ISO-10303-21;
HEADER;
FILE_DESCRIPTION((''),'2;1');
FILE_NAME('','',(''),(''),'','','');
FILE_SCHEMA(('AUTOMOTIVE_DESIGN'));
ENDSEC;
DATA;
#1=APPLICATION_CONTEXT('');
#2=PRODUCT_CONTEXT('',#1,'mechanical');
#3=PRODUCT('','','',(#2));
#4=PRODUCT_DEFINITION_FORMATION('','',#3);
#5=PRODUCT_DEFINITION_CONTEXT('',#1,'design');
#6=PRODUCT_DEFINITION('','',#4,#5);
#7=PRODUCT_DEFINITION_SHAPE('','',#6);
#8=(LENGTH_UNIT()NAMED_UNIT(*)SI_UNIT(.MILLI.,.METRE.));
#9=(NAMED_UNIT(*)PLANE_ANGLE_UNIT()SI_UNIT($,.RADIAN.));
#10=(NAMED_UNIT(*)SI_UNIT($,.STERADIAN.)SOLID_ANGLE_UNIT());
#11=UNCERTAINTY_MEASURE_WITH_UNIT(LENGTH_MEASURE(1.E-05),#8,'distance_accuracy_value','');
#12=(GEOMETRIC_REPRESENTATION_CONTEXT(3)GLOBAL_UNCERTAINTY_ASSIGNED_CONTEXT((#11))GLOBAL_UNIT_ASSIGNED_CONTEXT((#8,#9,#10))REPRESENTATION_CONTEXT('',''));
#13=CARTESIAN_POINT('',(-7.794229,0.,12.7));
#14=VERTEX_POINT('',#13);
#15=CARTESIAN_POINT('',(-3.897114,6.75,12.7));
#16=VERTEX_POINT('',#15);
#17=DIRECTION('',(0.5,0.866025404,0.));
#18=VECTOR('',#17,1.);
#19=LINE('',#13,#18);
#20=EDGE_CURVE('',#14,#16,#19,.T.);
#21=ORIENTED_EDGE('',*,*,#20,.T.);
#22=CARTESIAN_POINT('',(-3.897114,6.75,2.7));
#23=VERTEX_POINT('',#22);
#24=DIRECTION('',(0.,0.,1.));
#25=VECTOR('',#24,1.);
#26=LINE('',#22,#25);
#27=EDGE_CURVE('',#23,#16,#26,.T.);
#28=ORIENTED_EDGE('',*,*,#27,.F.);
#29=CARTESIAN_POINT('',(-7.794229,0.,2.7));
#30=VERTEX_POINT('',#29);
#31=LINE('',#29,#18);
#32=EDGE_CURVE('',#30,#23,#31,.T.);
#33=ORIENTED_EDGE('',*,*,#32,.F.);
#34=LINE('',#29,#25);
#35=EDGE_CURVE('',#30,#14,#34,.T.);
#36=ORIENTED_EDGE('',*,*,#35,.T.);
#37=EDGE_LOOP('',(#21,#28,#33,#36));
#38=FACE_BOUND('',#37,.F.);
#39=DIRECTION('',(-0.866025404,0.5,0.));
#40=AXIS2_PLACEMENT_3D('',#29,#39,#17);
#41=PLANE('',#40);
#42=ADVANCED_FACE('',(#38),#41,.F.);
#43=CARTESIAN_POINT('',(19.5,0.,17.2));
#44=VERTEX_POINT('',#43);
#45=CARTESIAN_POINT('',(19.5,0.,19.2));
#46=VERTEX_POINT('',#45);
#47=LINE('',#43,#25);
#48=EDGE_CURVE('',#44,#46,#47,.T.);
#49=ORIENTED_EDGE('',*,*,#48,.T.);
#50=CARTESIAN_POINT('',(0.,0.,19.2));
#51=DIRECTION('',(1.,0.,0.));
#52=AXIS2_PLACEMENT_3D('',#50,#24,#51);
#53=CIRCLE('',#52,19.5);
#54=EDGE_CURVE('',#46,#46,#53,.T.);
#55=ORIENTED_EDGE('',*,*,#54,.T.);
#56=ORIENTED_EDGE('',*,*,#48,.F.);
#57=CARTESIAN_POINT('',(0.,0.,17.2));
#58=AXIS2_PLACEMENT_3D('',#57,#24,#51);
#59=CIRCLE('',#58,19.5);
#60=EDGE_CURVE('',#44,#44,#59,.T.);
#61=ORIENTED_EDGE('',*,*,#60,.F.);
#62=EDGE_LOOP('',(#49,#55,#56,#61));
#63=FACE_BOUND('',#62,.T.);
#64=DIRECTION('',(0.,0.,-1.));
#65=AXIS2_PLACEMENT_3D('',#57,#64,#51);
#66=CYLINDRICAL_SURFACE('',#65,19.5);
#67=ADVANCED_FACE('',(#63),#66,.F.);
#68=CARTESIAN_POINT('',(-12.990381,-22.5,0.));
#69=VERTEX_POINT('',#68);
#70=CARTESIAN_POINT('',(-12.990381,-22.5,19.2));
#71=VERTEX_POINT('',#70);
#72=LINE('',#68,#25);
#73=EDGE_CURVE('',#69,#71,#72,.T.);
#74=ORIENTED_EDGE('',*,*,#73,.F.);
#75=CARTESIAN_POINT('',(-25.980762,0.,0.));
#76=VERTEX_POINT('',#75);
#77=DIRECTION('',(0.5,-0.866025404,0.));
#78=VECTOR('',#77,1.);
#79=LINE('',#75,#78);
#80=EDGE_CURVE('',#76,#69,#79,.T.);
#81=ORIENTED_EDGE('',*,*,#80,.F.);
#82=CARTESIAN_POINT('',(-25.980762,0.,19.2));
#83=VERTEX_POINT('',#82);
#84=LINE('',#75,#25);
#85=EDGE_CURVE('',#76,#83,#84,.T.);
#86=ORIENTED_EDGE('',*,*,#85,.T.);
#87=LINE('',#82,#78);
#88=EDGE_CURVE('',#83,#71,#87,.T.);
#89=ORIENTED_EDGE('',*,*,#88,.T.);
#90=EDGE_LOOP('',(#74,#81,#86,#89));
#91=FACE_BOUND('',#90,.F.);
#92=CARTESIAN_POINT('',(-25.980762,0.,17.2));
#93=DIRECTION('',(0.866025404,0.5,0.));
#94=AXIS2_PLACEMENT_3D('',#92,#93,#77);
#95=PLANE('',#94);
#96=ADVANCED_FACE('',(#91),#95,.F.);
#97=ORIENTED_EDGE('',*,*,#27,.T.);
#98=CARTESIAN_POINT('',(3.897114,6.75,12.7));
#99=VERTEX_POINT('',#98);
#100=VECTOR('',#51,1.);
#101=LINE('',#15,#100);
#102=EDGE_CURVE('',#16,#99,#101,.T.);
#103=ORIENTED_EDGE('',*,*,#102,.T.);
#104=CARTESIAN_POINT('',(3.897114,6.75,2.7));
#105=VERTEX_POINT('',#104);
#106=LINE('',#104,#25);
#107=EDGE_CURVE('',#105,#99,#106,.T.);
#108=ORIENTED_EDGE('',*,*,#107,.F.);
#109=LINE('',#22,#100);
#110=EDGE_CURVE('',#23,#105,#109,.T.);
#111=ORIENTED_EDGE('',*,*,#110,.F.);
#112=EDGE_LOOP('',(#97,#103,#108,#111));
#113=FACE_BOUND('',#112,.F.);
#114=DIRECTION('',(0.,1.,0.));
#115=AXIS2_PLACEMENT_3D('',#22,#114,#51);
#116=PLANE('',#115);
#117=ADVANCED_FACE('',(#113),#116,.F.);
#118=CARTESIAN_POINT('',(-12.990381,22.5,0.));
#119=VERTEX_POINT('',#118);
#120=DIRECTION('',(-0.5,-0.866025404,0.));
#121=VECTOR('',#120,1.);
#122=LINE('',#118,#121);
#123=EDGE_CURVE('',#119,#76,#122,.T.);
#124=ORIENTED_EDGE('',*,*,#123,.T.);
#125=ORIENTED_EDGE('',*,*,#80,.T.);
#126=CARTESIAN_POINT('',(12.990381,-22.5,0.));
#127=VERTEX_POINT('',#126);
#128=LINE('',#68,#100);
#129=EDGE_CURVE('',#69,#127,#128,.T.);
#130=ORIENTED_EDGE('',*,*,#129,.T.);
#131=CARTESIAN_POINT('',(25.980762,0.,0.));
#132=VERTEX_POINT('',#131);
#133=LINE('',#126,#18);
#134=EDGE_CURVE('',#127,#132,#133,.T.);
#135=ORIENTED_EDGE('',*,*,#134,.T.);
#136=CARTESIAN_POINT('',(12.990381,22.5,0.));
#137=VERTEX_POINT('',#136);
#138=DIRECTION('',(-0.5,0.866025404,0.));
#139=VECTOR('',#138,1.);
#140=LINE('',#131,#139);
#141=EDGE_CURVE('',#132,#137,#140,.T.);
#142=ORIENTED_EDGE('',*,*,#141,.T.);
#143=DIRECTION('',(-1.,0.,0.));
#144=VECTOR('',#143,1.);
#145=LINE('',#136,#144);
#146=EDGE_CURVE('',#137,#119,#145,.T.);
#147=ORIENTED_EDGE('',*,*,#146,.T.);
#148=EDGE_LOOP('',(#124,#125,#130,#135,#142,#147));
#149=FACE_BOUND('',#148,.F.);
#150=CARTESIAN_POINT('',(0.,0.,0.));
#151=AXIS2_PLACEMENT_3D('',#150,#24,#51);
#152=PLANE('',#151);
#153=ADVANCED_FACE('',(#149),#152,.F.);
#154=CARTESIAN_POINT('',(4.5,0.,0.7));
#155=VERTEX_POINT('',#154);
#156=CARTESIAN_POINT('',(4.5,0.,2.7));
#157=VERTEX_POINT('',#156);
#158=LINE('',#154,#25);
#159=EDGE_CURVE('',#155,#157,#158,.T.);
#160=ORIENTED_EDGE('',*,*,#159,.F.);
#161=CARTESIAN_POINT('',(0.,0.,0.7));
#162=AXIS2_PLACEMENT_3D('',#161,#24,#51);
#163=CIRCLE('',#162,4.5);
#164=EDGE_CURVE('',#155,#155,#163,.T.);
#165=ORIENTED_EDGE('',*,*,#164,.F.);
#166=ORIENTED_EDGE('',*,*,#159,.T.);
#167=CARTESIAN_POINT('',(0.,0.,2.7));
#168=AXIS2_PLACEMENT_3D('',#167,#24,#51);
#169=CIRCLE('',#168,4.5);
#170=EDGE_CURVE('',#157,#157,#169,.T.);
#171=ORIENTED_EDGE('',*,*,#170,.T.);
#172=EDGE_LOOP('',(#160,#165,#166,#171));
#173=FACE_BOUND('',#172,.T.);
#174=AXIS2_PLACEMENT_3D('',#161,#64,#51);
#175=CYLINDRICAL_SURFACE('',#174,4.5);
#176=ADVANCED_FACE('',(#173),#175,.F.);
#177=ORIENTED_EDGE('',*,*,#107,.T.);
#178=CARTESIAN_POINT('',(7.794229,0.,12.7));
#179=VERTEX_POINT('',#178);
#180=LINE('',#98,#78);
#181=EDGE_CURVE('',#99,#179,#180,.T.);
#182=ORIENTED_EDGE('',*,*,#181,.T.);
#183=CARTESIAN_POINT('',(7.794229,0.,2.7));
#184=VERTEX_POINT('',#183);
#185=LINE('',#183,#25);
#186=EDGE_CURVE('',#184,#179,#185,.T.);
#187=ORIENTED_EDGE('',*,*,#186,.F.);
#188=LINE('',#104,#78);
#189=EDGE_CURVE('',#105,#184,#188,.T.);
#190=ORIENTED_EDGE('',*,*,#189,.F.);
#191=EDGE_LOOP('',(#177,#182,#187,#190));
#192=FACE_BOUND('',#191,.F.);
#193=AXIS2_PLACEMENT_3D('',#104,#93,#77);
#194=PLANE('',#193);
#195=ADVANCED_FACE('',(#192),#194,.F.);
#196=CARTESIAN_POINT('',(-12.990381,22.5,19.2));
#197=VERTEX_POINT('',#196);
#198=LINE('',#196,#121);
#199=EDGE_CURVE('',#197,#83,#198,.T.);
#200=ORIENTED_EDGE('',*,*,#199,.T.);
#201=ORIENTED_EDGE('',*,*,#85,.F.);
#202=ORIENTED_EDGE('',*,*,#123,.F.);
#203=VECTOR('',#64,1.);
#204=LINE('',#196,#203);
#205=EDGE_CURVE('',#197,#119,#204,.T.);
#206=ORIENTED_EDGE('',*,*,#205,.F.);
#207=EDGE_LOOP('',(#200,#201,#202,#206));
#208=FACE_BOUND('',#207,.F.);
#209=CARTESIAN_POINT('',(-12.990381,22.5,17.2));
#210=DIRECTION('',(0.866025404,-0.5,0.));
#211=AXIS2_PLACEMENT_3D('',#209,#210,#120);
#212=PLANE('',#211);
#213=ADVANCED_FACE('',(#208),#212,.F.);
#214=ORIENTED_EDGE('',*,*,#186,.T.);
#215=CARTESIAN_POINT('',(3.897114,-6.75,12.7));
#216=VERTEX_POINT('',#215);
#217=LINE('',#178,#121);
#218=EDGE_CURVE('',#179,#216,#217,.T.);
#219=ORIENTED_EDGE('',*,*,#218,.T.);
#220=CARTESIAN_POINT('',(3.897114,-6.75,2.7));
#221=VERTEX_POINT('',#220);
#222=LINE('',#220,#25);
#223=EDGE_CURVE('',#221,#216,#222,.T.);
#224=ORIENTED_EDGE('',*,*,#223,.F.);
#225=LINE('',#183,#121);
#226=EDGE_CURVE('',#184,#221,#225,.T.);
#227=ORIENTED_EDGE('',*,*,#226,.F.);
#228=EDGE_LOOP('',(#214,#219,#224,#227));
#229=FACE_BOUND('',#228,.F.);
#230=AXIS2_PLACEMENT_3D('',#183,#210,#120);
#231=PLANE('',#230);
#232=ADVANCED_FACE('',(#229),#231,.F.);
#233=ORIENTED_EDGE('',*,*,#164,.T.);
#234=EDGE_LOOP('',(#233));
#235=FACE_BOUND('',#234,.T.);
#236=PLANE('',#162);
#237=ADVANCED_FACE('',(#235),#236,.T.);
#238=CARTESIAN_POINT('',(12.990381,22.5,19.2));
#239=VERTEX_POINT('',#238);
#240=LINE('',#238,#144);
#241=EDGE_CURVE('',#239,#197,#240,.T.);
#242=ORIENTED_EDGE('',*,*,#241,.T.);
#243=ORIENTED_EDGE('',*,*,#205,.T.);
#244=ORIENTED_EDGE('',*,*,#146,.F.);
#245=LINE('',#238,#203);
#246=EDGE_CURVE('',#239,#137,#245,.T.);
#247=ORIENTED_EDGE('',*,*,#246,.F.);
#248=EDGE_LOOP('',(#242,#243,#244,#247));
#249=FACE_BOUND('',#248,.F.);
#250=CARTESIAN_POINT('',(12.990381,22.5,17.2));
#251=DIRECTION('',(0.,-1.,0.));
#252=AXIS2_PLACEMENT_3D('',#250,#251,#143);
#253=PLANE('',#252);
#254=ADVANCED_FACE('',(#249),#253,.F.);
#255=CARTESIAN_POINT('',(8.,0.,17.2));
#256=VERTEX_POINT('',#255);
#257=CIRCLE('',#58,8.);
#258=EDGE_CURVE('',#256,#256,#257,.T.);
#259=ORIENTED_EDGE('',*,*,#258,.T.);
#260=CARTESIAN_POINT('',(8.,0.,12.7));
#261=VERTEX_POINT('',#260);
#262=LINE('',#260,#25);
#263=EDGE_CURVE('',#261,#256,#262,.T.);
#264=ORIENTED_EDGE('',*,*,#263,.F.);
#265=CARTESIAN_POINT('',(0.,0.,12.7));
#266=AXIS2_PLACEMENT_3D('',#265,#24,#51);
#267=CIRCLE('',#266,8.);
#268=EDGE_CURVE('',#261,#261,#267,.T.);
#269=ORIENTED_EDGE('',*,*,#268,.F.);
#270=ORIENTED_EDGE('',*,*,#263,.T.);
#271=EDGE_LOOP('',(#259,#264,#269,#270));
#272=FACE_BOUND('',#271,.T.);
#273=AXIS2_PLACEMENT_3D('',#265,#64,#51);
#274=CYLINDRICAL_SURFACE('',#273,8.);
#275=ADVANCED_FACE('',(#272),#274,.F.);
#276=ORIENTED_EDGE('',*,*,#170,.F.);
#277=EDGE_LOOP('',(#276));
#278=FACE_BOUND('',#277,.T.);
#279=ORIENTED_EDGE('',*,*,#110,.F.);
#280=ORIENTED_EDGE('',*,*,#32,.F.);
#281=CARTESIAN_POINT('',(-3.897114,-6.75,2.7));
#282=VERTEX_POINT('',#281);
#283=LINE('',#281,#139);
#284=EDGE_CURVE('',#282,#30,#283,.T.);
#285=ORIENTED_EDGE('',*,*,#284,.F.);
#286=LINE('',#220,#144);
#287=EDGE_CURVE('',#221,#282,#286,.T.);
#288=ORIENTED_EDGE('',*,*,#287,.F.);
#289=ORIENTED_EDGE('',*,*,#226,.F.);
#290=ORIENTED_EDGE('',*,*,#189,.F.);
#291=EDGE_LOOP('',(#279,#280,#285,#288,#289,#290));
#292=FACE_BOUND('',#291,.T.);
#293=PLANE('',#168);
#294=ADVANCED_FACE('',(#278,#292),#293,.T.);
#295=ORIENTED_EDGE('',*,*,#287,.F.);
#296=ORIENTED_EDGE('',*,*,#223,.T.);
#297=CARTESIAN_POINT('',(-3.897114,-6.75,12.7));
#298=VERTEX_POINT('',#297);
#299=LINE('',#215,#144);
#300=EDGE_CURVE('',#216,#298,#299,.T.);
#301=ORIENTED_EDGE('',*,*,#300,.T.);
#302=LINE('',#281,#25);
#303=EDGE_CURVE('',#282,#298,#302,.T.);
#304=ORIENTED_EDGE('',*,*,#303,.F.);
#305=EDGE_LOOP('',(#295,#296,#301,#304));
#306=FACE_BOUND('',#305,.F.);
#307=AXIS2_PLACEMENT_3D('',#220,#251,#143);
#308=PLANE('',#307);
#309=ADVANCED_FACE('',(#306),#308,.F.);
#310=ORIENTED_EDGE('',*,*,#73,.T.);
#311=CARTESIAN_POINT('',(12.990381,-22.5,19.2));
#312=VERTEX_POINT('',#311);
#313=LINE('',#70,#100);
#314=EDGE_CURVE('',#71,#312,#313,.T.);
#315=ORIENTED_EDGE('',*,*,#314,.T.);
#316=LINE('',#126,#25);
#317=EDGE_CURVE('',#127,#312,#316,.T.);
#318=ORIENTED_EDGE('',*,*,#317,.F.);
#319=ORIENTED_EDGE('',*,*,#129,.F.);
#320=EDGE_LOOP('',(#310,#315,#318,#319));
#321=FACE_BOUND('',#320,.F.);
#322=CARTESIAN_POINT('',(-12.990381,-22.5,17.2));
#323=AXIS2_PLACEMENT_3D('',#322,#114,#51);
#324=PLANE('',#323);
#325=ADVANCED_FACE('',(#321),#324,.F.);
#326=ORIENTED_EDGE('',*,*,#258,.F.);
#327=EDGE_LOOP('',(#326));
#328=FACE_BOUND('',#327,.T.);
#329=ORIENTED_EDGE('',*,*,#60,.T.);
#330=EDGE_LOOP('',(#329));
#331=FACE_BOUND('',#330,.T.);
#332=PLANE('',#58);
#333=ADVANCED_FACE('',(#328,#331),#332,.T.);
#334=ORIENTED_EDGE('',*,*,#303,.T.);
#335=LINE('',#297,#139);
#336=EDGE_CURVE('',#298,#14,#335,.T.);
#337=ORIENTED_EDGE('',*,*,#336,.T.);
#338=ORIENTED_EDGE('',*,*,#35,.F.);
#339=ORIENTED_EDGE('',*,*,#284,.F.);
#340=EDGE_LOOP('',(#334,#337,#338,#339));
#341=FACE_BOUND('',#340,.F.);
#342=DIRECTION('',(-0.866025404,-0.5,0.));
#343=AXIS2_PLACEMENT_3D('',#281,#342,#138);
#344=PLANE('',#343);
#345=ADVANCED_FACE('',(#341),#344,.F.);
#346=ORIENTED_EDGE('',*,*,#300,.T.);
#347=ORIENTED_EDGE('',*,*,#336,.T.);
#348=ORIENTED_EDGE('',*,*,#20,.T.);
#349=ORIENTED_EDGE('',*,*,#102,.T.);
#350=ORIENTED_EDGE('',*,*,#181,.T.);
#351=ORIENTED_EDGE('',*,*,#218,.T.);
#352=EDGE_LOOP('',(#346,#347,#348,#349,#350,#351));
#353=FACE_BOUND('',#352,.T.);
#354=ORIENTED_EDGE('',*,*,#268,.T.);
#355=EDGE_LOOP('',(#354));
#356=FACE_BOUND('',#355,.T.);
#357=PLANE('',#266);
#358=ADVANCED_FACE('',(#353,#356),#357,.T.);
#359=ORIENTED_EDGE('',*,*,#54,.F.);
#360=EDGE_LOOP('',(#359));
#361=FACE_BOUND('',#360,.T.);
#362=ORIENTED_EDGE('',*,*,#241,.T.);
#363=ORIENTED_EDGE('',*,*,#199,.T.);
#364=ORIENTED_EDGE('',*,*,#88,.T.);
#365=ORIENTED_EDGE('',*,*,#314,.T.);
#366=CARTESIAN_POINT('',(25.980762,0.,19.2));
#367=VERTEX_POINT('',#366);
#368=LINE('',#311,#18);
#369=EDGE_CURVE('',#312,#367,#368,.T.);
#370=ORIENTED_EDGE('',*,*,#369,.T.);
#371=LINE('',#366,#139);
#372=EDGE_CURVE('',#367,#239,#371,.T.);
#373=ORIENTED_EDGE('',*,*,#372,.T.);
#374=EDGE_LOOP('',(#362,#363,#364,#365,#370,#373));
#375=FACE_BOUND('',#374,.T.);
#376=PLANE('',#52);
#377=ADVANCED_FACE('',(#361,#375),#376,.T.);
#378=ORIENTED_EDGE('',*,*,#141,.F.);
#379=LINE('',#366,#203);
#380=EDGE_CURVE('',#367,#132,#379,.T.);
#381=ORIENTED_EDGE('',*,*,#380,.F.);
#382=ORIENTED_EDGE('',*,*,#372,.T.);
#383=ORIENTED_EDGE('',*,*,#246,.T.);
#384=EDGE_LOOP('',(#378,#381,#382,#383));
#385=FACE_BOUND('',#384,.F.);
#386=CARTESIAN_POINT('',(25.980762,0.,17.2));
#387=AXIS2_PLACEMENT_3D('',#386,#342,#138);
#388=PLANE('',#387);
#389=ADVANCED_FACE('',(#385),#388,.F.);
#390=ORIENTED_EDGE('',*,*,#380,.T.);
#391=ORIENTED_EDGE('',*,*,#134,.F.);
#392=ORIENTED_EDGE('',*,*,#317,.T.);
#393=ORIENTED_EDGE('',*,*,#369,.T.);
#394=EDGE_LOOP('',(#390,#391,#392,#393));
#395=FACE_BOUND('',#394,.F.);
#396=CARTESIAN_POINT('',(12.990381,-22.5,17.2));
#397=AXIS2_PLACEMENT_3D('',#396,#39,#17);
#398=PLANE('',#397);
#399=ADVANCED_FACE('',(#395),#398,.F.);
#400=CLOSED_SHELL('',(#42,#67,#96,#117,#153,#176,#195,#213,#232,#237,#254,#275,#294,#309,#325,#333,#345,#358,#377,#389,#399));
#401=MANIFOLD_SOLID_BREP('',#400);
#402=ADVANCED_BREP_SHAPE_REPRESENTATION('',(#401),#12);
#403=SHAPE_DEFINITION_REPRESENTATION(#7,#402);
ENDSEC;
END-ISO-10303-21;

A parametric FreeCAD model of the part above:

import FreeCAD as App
import Part
import Sketcher

V = App.Vector
Q = App.Units.Quantity


def add_polygon(sketch, points):
    """Adds a closed chain of lines whose ends are joined by coincident constraints."""
    first, n = sketch.GeometryCount, len(points)
    for a, b in zip(points, points[1:] + points[:1]):
        sketch.addGeometry(Part.LineSegment(App.Vector(*a, 0), App.Vector(*b, 0)), False)
    for i in range(n):
        sketch.addConstraint(Sketcher.Constraint("Coincident", first + i, 2, first + (i + 1) % n, 1))

doc = App.newDocument("Part")
body = doc.addObject("PartDesign::Body", "Body")

sketch1 = body.newObject("Sketcher::SketchObject", "Sketch")
sketch1.AttachmentSupport = (doc.getObject("XY_Plane"), [""])
sketch1.MapMode = "FlatFace"
add_polygon(sketch1, [(-13, -22), (13, -22), (26, 0), (13, 22), (-13, 22), (-26, 0)])
sketch1.addConstraint([
    Sketcher.Constraint("Horizontal", 0),
    Sketcher.Constraint("Horizontal", 3),
    Sketcher.Constraint("Symmetric", 0, 2, 3, 2, -1, 1),
    Sketcher.Constraint("Symmetric", 1, 2, 4, 2, -1, 1),
    Sketcher.Constraint("PointOnObject", 1, 2, -1),
    Sketcher.Constraint("Parallel", 2, 5),
    Sketcher.Constraint("Vertical", 0, 2, 2, 2),
    Sketcher.Constraint("Angle", 1, Q("60 deg")),
    Sketcher.Constraint("DistanceY", 0, 2, 2, 2, Q("45 mm")),
    Sketcher.Constraint("DistanceX", 0, 1, 0, 2, Q("25.980762 mm")),
])
pad1 = body.newObject("PartDesign::Pad", "Pad")
pad1.Profile = sketch1
pad1.Length = 0.7

sketch2 = body.newObject("Sketcher::SketchObject", "Sketch001")
sketch2.AttachmentSupport = (doc.getObject("XY_Plane"), [""])
sketch2.MapMode = "FlatFace"
sketch2.AttachmentOffset = App.Placement(V(0, 0, 0.7), App.Rotation())
add_polygon(sketch2, [(-13, 22.5), (-26, 0), (-13, -22.5), (13, -22.5), (26, 0), (13, 22.5)])
sketch2.addGeometry(Part.Circle(V(0, 0, 0), V(0, 0, 1), 4.5), False)
sketch2.addConstraint([
    Sketcher.Constraint("Horizontal", 2),
    Sketcher.Constraint("Horizontal", 5),
    Sketcher.Constraint("Coincident", 6, 3, -1, 1),
    Sketcher.Constraint("Symmetric", 0, 2, 3, 2, -1, 1),
    Sketcher.Constraint("Symmetric", 1, 2, 4, 2, -1, 1),
    Sketcher.Constraint("PointOnObject", 0, 2, -1),
    Sketcher.Constraint("Parallel", 0, 3),
    Sketcher.Constraint("Vertical", 2, 2, 4, 2),
    Sketcher.Constraint("Diameter", 6, Q("9 mm")),
    Sketcher.Constraint("Angle", 0, Q("-120 deg")),
    Sketcher.Constraint("DistanceY", 2, 2, 4, 2, Q("45 mm")),
    Sketcher.Constraint("DistanceX", 2, 1, 2, 2, Q("25.980762 mm")),
])
pad2 = body.newObject("PartDesign::Pad", "Pad001")
pad2.Profile = sketch2
pad2.Length = 2

sketch3 = body.newObject("Sketcher::SketchObject", "Sketch002")
sketch3.AttachmentSupport = (doc.getObject("XY_Plane"), [""])
sketch3.MapMode = "FlatFace"
sketch3.AttachmentOffset = App.Placement(V(0, 0, 2.7), App.Rotation())
add_polygon(sketch3, [(13, -22), (26, 0), (13, 22), (-13, 22), (-26, 0), (-13, -22)])
add_polygon(sketch3, [(4, 7), (8, 0), (4, -7), (-4, -7), (-8, 0), (-4, 7)])
sketch3.addConstraint([
    Sketcher.Constraint("Horizontal", 2),
    Sketcher.Constraint("Horizontal", 5),
    Sketcher.Constraint("Horizontal", 8),
    Sketcher.Constraint("Horizontal", 11),
    Sketcher.Constraint("Symmetric", 0, 2, 3, 2, -1, 1),
    Sketcher.Constraint("Symmetric", 1, 2, 4, 2, -1, 1),
    Sketcher.Constraint("Symmetric", 6, 2, 9, 2, -1, 1),
    Sketcher.Constraint("Symmetric", 7, 2, 10, 2, -1, 1),
    Sketcher.Constraint("PointOnObject", 0, 2, -1),
    Sketcher.Constraint("PointOnObject", 6, 2, -1),
    Sketcher.Constraint("Parallel", 0, 3),
    Sketcher.Constraint("Parallel", 4, 6),
    Sketcher.Constraint("Parallel", 3, 7),
    Sketcher.Constraint("Parallel", 6, 9),
    Sketcher.Constraint("Vertical", 2, 2, 4, 2),
    Sketcher.Constraint("Angle", 0, Q("60 deg")),
    Sketcher.Constraint("DistanceY", 4, 2, 2, 2, Q("45 mm")),
    Sketcher.Constraint("DistanceY", 8, 2, 10, 2, Q("13.5 mm")),
    Sketcher.Constraint("DistanceX", 8, 2, 8, 1, Q("7.794229 mm")),
    Sketcher.Constraint("DistanceX", 2, 2, 2, 1, Q("25.980762 mm")),
])
pad3 = body.newObject("PartDesign::Pad", "Pad002")
pad3.Profile = sketch3
pad3.Length = 10

sketch4 = body.newObject("Sketcher::SketchObject", "Sketch003")
sketch4.AttachmentSupport = (doc.getObject("XY_Plane"), [""])
sketch4.MapMode = "FlatFace"
sketch4.AttachmentOffset = App.Placement(V(0, 0, 12.7), App.Rotation())
add_polygon(sketch4, [(-13, -22), (13, -22), (26, 0), (13, 22), (-13, 22), (-26, 0)])
sketch4.addGeometry(Part.Circle(V(0, 0, 0), V(0, 0, 1), 8), False)
sketch4.addConstraint([
    Sketcher.Constraint("Horizontal", 0),
    Sketcher.Constraint("Horizontal", 3),
    Sketcher.Constraint("Coincident", 6, 3, -1, 1),
    Sketcher.Constraint("Symmetric", 0, 2, 3, 2, -1, 1),
    Sketcher.Constraint("Symmetric", 1, 2, 4, 2, -1, 1),
    Sketcher.Constraint("PointOnObject", 1, 2, -1),
    Sketcher.Constraint("Parallel", 2, 5),
    Sketcher.Constraint("Vertical", 0, 2, 2, 2),
    Sketcher.Constraint("Diameter", 6, Q("16 mm")),
    Sketcher.Constraint("Angle", 1, Q("60 deg")),
    Sketcher.Constraint("DistanceY", 0, 2, 2, 2, Q("45 mm")),
    Sketcher.Constraint("DistanceX", 0, 1, 0, 2, Q("25.980762 mm")),
])
pad4 = body.newObject("PartDesign::Pad", "Pad003")
pad4.Profile = sketch4
pad4.Length = 4.5

sketch5 = body.newObject("Sketcher::SketchObject", "Sketch004")
sketch5.AttachmentSupport = (doc.getObject("XY_Plane"), [""])
sketch5.MapMode = "FlatFace"
sketch5.AttachmentOffset = App.Placement(V(0, 0, 17.2), App.Rotation())
add_polygon(sketch5, [(-13, 22), (-26, 0), (-13, -22), (13, -22), (26, 0), (13, 22)])
sketch5.addGeometry(Part.Circle(V(0, 0, 0), V(0, 0, 1), 20), False)
sketch5.addConstraint([
    Sketcher.Constraint("Horizontal", 2),
    Sketcher.Constraint("Horizontal", 5),
    Sketcher.Constraint("Coincident", 6, 3, -1, 1),
    Sketcher.Constraint("Symmetric", 0, 2, 3, 2, -1, 1),
    Sketcher.Constraint("Symmetric", 1, 2, 4, 2, -1, 1),
    Sketcher.Constraint("PointOnObject", 0, 2, -1),
    Sketcher.Constraint("Parallel", 0, 3),
    Sketcher.Constraint("Vertical", 2, 2, 4, 2),
    Sketcher.Constraint("Diameter", 6, Q("39 mm")),
    Sketcher.Constraint("Angle", 0, Q("-120 deg")),
    Sketcher.Constraint("DistanceY", 2, 2, 4, 2, Q("45 mm")),
    Sketcher.Constraint("DistanceX", 2, 1, 2, 2, Q("25.980762 mm")),
])
pad5 = body.newObject("PartDesign::Pad", "Pad004")
pad5.Profile = sketch5
pad5.Length = 2

doc.recompute()
